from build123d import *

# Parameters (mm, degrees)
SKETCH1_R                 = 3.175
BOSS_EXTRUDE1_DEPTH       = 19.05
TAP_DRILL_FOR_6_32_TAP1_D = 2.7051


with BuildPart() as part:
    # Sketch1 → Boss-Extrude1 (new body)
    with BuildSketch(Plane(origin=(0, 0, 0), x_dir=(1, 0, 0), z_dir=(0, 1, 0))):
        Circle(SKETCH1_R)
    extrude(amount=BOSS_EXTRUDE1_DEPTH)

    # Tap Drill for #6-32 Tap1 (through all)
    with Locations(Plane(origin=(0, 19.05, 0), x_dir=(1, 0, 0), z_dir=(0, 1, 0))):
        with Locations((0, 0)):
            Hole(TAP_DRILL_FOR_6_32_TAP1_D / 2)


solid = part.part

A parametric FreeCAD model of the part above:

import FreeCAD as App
import Part
import Sketcher
Q = App.Units.Quantity

doc = App.newDocument("Part")
body = doc.addObject("PartDesign::Body", "Body")

# Sketch on XZ plane
sketch1 = doc.addObject("Sketcher::SketchObject", "Sketch")
body.addObject(sketch1)
sketch1.AttachmentSupport = (doc.XZ_Plane, [""])
sketch1.MapMode = "FlatFace"
sketch1.addGeometry(Part.Circle(App.Vector(0, 0, 0), App.Vector(0, 0, 1), 3.2), False)
sketch1.addConstraint([
    Sketcher.Constraint("Coincident", 0, 3, -1, 1),
    Sketcher.Constraint("Diameter", 0, Q("0.25 in")),
])
pad1 = doc.addObject("PartDesign::Pad", "Pad")
body.addObject(pad1)
pad1.Profile = sketch1
pad1.Length = Q("0.75 in")
pad1.Reversed = True

# Sketch on XZ plane
sketch2 = doc.addObject("Sketcher::SketchObject", "Sketch001")
body.addObject(sketch2)
sketch2.AttachmentSupport = (doc.XZ_Plane, [""])
sketch2.MapMode = "FlatFace"
sketch2.AttachmentOffset = App.Placement(App.Vector(0, 0, -0.75 * 25.4), App.Rotation())
sketch2.addGeometry(Part.Circle(App.Vector(0, 0, 0), App.Vector(0, 0, 1), 1.4), False)
sketch2.addConstraint([
    Sketcher.Constraint("Coincident", 0, 3, -1, 1),
    Sketcher.Constraint("Diameter", 0, Q("0.1065 in")),
])
doc.recompute()
hole = doc.addObject("PartDesign::Hole", "Hole")
body.addObject(hole)
hole.Profile = sketch2
hole.ThreadType = "None"
hole.Diameter = Q("0.1065 in")
hole.DepthType = "ThroughAll"
hole.Reversed = True

doc.recompute()
